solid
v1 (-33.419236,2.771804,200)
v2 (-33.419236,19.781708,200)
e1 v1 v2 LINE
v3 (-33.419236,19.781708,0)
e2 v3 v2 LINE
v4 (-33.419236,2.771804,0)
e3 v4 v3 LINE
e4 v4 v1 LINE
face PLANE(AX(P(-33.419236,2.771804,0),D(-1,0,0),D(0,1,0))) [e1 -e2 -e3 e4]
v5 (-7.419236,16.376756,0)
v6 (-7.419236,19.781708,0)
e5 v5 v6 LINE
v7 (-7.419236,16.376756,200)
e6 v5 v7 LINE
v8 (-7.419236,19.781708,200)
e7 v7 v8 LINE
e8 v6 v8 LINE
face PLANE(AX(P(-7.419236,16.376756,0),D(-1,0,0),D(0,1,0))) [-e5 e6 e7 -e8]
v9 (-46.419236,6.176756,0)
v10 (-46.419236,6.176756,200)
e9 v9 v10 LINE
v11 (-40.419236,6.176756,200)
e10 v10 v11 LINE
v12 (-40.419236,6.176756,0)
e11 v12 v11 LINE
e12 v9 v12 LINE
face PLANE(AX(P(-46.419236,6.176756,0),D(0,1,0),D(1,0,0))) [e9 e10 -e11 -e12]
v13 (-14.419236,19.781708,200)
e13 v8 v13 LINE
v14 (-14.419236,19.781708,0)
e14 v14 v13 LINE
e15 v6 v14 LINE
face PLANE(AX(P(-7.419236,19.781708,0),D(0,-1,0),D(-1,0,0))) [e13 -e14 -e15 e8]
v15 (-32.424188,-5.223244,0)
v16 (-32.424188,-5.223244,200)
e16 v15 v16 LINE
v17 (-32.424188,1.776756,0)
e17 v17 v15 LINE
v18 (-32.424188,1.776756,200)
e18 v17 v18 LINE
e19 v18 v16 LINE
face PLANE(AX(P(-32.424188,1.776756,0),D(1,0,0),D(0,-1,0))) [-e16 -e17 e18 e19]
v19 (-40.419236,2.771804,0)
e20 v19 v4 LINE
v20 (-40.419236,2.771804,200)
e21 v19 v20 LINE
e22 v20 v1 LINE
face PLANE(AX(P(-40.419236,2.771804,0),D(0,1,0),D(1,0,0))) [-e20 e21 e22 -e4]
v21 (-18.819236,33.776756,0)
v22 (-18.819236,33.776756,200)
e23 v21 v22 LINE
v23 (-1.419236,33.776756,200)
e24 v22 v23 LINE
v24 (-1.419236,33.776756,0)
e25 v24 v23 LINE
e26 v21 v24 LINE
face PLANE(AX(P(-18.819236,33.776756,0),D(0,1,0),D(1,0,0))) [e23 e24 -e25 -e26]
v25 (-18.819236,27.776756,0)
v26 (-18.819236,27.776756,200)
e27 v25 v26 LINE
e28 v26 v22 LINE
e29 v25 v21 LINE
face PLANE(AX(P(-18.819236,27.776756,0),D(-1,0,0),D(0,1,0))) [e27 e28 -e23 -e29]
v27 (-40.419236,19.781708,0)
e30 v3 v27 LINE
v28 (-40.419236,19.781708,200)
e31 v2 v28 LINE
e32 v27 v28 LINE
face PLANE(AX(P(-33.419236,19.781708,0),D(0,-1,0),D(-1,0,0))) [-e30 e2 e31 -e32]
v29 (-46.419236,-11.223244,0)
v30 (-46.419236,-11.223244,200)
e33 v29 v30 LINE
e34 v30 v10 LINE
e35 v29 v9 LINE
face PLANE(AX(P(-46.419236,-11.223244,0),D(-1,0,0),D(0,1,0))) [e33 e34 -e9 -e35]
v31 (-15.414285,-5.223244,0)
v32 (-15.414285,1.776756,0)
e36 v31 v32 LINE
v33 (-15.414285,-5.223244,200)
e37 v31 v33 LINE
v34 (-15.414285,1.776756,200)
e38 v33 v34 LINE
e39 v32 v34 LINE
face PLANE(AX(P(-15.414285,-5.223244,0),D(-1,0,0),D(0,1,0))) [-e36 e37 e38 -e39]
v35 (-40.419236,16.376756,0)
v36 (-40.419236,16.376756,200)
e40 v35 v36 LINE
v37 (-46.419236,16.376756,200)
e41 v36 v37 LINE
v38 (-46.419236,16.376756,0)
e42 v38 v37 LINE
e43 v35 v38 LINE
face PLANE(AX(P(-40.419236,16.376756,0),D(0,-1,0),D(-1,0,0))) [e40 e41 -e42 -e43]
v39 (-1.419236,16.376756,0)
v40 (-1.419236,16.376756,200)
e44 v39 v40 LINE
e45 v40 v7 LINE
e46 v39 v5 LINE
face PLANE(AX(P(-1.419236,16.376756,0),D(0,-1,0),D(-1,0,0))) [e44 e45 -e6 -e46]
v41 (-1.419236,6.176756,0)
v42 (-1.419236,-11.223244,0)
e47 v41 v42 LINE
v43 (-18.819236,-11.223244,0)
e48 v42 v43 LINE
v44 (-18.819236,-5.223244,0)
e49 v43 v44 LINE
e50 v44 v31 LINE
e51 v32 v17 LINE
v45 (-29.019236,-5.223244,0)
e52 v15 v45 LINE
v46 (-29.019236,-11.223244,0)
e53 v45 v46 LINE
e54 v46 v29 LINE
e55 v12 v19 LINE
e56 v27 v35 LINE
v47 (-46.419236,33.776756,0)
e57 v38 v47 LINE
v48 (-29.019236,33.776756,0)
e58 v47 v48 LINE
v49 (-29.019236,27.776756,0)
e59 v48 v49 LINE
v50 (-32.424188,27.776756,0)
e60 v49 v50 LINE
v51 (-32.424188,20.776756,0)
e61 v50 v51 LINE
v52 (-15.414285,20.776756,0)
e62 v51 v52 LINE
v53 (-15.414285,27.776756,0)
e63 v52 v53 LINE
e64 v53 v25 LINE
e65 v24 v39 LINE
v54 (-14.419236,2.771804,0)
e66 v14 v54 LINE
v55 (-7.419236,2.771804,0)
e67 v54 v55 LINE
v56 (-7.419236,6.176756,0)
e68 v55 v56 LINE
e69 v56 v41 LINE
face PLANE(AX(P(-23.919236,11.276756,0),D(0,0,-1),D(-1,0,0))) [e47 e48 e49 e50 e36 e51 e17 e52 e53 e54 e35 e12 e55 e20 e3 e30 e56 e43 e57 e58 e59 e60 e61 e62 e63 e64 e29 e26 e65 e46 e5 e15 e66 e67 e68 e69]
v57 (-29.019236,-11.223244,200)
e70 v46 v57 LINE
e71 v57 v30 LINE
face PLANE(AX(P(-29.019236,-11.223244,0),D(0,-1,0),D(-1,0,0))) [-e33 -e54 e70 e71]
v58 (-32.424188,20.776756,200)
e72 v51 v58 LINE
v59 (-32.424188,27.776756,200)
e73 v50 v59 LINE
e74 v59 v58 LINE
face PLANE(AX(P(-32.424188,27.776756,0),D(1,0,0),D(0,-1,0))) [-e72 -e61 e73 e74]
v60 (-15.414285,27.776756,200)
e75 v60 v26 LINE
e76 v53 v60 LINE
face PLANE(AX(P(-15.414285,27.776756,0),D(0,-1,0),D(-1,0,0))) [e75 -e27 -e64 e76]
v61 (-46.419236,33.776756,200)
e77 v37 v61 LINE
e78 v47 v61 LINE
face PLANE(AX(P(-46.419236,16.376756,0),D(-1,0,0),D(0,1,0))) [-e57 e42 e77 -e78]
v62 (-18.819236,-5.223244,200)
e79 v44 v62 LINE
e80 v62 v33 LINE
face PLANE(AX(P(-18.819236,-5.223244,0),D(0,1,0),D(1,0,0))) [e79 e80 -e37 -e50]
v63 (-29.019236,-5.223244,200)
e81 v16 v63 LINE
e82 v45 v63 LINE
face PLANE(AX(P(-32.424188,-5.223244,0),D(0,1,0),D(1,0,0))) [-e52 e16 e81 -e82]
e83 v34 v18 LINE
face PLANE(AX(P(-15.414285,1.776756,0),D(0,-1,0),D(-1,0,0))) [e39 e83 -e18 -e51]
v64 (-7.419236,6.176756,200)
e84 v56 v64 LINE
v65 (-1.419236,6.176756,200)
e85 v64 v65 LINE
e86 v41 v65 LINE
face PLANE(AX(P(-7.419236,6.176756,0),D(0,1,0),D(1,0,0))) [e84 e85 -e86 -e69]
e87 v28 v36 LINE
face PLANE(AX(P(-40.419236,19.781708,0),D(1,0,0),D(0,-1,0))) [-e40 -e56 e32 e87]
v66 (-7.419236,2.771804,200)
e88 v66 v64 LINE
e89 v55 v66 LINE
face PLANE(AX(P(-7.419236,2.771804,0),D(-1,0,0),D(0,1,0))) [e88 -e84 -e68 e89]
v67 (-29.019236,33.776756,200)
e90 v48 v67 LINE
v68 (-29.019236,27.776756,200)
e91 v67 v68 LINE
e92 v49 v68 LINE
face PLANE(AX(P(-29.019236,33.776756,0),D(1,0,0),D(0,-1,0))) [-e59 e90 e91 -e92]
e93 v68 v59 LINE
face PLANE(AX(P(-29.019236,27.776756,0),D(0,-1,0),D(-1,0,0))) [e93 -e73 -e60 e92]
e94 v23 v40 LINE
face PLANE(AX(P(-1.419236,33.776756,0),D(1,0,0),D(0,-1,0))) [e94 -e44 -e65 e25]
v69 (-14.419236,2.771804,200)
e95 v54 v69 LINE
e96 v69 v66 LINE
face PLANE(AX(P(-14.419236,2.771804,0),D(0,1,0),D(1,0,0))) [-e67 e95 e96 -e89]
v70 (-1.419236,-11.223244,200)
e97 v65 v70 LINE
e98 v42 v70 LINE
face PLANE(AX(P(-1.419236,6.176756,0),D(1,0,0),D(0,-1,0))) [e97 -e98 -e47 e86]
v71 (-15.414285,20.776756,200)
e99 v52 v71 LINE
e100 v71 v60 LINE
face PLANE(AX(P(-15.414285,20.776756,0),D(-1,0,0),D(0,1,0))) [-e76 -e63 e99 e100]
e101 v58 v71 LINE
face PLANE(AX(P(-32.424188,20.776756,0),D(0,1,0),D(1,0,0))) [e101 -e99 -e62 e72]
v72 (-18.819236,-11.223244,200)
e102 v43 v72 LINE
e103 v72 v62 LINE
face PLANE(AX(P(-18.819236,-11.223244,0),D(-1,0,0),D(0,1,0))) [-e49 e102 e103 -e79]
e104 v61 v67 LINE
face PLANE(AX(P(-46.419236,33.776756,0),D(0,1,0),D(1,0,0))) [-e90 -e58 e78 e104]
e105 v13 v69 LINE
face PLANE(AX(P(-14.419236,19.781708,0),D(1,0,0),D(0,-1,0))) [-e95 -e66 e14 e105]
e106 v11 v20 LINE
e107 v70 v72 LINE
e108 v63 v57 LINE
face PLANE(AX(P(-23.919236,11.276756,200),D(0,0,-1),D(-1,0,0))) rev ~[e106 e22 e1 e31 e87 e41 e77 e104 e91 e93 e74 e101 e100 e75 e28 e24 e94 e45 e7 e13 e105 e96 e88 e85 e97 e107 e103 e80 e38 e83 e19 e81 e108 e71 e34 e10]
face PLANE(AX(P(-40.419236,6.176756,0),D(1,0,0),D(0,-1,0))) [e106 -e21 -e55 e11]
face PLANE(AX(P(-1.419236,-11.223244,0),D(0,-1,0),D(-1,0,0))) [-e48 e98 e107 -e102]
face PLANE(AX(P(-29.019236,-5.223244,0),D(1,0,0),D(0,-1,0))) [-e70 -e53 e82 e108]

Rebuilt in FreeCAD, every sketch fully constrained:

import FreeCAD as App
import Part
import Sketcher


def add_polygon(sketch, points):
    """Adds a closed chain of lines whose ends are joined by coincident constraints."""
    first, n = sketch.GeometryCount, len(points)
    for a, b in zip(points, points[1:] + points[:1]):
        sketch.addGeometry(Part.LineSegment(App.Vector(*a, 0), App.Vector(*b, 0)), False)
    for i in range(n):
        sketch.addConstraint(Sketcher.Constraint("Coincident", first + i, 2, first + (i + 1) % n, 1))

doc = App.newDocument("Part")
params = doc.addObject("Spreadsheet::Sheet", "Params")
for row, (alias, value) in enumerate([
    ("sketch1_width", "6 mm"),
    ("sketch1_width2", "7 mm"),
    ("sketch1_width3", "17.4 mm"),
    ("pad1_length", "200 mm"),
], start=1):
    params.set(f"A{row}", alias)
    params.set(f"B{row}", "=" + value)
    params.setAlias(f"B{row}", alias)

body = doc.addObject("PartDesign::Body", "Body")

# Sketch on XY plane
sketch1 = doc.addObject("Sketcher::SketchObject", "Sketch")
body.addObject(sketch1)
sketch1.AttachmentSupport = (doc.XY_Plane, [""])
sketch1.MapMode = "FlatFace"
add_polygon(sketch1, [(-1.4, 33.8), (-18.8, 33.8), (-18.8, 27.8), (-15.4, 27.8), (-15.4, 20.8), (-32.4, 20.8), (-32.4, 27.8), (-29, 27.8), (-29, 33.8), (-46.4, 33.8), (-46.4, 16.4), (-40.4, 16.4), (-40.4, 19.8), (-33.4, 19.8), (-33.4, 2.8), (-40.4, 2.8), (-40.4, 6.2), (-46.4, 6.2), (-46.4, -11.2), (-29, -11.2), (-29, -5.2), (-32.4, -5.2), (-32.4, 1.8), (-15.4, 1.8), (-15.4, -5.2), (-18.8, -5.2), (-18.8, -11.2), (-1.4, -11.2), (-1.4, 6.2), (-7.4, 6.2), (-7.4, 2.8), (-14.4, 2.8), (-14.4, 19.8), (-7.4, 19.8), (-7.4, 16.4), (-1.4, 16.4)])  # lines 0-35
sketch1.addConstraint(Sketcher.Constraint("Horizontal", 0))
sketch1.addConstraint(Sketcher.Constraint("Vertical", 1))
sketch1.addConstraint(Sketcher.Constraint("Horizontal", 2))
sketch1.addConstraint(Sketcher.Constraint("Vertical", 3))
sketch1.addConstraint(Sketcher.Constraint("Horizontal", 4))
sketch1.addConstraint(Sketcher.Constraint("Vertical", 5))
sketch1.addConstraint(Sketcher.Constraint("Horizontal", 6))
sketch1.addConstraint(Sketcher.Constraint("Vertical", 7))
sketch1.addConstraint(Sketcher.Constraint("Horizontal", 8))
sketch1.addConstraint(Sketcher.Constraint("Vertical", 9))
sketch1.addConstraint(Sketcher.Constraint("Horizontal", 10))
sketch1.addConstraint(Sketcher.Constraint("Vertical", 11))
sketch1.addConstraint(Sketcher.Constraint("Horizontal", 12))
sketch1.addConstraint(Sketcher.Constraint("Vertical", 13))
sketch1.addConstraint(Sketcher.Constraint("Horizontal", 14))
sketch1.addConstraint(Sketcher.Constraint("Vertical", 15))
sketch1.addConstraint(Sketcher.Constraint("Horizontal", 16))
sketch1.addConstraint(Sketcher.Constraint("Vertical", 17))
sketch1.addConstraint(Sketcher.Constraint("Horizontal", 18))
sketch1.addConstraint(Sketcher.Constraint("Vertical", 19))
sketch1.addConstraint(Sketcher.Constraint("Horizontal", 20))
sketch1.addConstraint(Sketcher.Constraint("Vertical", 21))
sketch1.addConstraint(Sketcher.Constraint("Horizontal", 22))
sketch1.addConstraint(Sketcher.Constraint("Vertical", 23))
sketch1.addConstraint(Sketcher.Constraint("Horizontal", 24))
sketch1.addConstraint(Sketcher.Constraint("Vertical", 25))
sketch1.addConstraint(Sketcher.Constraint("Horizontal", 26))
sketch1.addConstraint(Sketcher.Constraint("Vertical", 27))
sketch1.addConstraint(Sketcher.Constraint("Horizontal", 28))
sketch1.addConstraint(Sketcher.Constraint("Vertical", 29))
sketch1.addConstraint(Sketcher.Constraint("Horizontal", 30))
sketch1.addConstraint(Sketcher.Constraint("Vertical", 31))
sketch1.addConstraint(Sketcher.Constraint("Horizontal", 32))
sketch1.addConstraint(Sketcher.Constraint("Vertical", 33))
sketch1.addConstraint(Sketcher.Constraint("Horizontal", 34))
sketch1.addConstraint(Sketcher.Constraint("Vertical", 35))
sketch1.addConstraint(Sketcher.Constraint("Horizontal", 2, 2, 5, 2))
sketch1.addConstraint(Sketcher.Constraint("Horizontal", 0, 2, 7, 2))
sketch1.addConstraint(Sketcher.Constraint("Horizontal", 20, 2, 23, 2))
sketch1.addConstraint(Sketcher.Constraint("Horizontal", 18, 2, 25, 2))
sketch1.addConstraint(Sketcher.Constraint("Horizontal", 16, 2, 27, 2))
sketch1.addConstraint(Sketcher.Constraint("Horizontal", 14, 2, 29, 2))
sketch1.addConstraint(Sketcher.Constraint("Horizontal", 12, 2, 31, 2))
sketch1.addConstraint(Sketcher.Constraint("Horizontal", 10, 2, 33, 2))
sketch1.addConstraint(Sketcher.Constraint("Vertical", 11, 2, 14, 2))
sketch1.addConstraint(Sketcher.Constraint("Vertical", 9, 2, 16, 2))
sketch1.addConstraint(Sketcher.Constraint("Vertical", 7, 2, 18, 2))
sketch1.addConstraint(Sketcher.Constraint("Vertical", 5, 2, 20, 2))
sketch1.addConstraint(Sketcher.Constraint("Vertical", 3, 2, 22, 2))
sketch1.addConstraint(Sketcher.Constraint("Vertical", 1, 2, 24, 2))
sketch1.addConstraint(Sketcher.Constraint("Vertical", 29, 2, 32, 2))
sketch1.addConstraint(Sketcher.Constraint("Vertical", 27, 2, 34, 2))
sketch1.addConstraint(Sketcher.Constraint("Equal", 2, 6))
sketch1.addConstraint(Sketcher.Constraint("Equal", 0, 8))
sketch1.addConstraint(Sketcher.Constraint("Equal", 16, 28))
sketch1.addConstraint(Sketcher.Constraint("Equal", 14, 30))
sketch1.addConstraint(Sketcher.Constraint("Equal", 34, 1))
sketch1.addConstraint(Sketcher.Constraint("Equal", 32, 3))
sketch1.addConstraint(Sketcher.Constraint("Equal", 26, 9))
sketch1.addConstraint(Sketcher.Constraint("Equal", 24, 11))
sketch1.addConstraint(Sketcher.Constraint("Equal", 22, 13))
sketch1.addConstraint(Sketcher.Constraint("Equal", 11, 15))
sketch1.addConstraint(Sketcher.Constraint("Equal", 9, 17))
sketch1.addConstraint(Sketcher.Constraint("Equal", 7, 19))
sketch1.addConstraint(Sketcher.Constraint("Equal", 5, 21))
sketch1.addConstraint(Sketcher.Constraint("DistanceX", 10, 1, 10, 2, 6.0))
sketch1.addConstraint(Sketcher.Constraint("DistanceX", 12, 1, 12, 2, 7.0))
sketch1.addConstraint(Sketcher.Constraint("DistanceX", 0, 2, 0, 1, 17.4))
sketch1.addConstraint(Sketcher.Constraint("DistanceX", 6, 2, 1, 2, 10.2))
sketch1.addConstraint(Sketcher.Constraint("DistanceX", 2, 1, 2, 2, 3.404952))
sketch1.addConstraint(Sketcher.Constraint("DistanceX", 0, 2, -1, 1, 18.819236))
sketch1.addConstraint(Sketcher.Constraint("DistanceY", -1, 1, 0, 2, 33.776756))
sketch1.setExpression("Constraints[101]", "Params.sketch1_width")
sketch1.setExpression("Constraints[102]", "Params.sketch1_width2")
sketch1.setExpression("Constraints[103]", "Params.sketch1_width3")
pad1 = doc.addObject("PartDesign::Pad", "Pad")
body.addObject(pad1)
pad1.Profile = sketch1
pad1.setExpression("Length", "Params.pad1_length")

doc.recompute()
